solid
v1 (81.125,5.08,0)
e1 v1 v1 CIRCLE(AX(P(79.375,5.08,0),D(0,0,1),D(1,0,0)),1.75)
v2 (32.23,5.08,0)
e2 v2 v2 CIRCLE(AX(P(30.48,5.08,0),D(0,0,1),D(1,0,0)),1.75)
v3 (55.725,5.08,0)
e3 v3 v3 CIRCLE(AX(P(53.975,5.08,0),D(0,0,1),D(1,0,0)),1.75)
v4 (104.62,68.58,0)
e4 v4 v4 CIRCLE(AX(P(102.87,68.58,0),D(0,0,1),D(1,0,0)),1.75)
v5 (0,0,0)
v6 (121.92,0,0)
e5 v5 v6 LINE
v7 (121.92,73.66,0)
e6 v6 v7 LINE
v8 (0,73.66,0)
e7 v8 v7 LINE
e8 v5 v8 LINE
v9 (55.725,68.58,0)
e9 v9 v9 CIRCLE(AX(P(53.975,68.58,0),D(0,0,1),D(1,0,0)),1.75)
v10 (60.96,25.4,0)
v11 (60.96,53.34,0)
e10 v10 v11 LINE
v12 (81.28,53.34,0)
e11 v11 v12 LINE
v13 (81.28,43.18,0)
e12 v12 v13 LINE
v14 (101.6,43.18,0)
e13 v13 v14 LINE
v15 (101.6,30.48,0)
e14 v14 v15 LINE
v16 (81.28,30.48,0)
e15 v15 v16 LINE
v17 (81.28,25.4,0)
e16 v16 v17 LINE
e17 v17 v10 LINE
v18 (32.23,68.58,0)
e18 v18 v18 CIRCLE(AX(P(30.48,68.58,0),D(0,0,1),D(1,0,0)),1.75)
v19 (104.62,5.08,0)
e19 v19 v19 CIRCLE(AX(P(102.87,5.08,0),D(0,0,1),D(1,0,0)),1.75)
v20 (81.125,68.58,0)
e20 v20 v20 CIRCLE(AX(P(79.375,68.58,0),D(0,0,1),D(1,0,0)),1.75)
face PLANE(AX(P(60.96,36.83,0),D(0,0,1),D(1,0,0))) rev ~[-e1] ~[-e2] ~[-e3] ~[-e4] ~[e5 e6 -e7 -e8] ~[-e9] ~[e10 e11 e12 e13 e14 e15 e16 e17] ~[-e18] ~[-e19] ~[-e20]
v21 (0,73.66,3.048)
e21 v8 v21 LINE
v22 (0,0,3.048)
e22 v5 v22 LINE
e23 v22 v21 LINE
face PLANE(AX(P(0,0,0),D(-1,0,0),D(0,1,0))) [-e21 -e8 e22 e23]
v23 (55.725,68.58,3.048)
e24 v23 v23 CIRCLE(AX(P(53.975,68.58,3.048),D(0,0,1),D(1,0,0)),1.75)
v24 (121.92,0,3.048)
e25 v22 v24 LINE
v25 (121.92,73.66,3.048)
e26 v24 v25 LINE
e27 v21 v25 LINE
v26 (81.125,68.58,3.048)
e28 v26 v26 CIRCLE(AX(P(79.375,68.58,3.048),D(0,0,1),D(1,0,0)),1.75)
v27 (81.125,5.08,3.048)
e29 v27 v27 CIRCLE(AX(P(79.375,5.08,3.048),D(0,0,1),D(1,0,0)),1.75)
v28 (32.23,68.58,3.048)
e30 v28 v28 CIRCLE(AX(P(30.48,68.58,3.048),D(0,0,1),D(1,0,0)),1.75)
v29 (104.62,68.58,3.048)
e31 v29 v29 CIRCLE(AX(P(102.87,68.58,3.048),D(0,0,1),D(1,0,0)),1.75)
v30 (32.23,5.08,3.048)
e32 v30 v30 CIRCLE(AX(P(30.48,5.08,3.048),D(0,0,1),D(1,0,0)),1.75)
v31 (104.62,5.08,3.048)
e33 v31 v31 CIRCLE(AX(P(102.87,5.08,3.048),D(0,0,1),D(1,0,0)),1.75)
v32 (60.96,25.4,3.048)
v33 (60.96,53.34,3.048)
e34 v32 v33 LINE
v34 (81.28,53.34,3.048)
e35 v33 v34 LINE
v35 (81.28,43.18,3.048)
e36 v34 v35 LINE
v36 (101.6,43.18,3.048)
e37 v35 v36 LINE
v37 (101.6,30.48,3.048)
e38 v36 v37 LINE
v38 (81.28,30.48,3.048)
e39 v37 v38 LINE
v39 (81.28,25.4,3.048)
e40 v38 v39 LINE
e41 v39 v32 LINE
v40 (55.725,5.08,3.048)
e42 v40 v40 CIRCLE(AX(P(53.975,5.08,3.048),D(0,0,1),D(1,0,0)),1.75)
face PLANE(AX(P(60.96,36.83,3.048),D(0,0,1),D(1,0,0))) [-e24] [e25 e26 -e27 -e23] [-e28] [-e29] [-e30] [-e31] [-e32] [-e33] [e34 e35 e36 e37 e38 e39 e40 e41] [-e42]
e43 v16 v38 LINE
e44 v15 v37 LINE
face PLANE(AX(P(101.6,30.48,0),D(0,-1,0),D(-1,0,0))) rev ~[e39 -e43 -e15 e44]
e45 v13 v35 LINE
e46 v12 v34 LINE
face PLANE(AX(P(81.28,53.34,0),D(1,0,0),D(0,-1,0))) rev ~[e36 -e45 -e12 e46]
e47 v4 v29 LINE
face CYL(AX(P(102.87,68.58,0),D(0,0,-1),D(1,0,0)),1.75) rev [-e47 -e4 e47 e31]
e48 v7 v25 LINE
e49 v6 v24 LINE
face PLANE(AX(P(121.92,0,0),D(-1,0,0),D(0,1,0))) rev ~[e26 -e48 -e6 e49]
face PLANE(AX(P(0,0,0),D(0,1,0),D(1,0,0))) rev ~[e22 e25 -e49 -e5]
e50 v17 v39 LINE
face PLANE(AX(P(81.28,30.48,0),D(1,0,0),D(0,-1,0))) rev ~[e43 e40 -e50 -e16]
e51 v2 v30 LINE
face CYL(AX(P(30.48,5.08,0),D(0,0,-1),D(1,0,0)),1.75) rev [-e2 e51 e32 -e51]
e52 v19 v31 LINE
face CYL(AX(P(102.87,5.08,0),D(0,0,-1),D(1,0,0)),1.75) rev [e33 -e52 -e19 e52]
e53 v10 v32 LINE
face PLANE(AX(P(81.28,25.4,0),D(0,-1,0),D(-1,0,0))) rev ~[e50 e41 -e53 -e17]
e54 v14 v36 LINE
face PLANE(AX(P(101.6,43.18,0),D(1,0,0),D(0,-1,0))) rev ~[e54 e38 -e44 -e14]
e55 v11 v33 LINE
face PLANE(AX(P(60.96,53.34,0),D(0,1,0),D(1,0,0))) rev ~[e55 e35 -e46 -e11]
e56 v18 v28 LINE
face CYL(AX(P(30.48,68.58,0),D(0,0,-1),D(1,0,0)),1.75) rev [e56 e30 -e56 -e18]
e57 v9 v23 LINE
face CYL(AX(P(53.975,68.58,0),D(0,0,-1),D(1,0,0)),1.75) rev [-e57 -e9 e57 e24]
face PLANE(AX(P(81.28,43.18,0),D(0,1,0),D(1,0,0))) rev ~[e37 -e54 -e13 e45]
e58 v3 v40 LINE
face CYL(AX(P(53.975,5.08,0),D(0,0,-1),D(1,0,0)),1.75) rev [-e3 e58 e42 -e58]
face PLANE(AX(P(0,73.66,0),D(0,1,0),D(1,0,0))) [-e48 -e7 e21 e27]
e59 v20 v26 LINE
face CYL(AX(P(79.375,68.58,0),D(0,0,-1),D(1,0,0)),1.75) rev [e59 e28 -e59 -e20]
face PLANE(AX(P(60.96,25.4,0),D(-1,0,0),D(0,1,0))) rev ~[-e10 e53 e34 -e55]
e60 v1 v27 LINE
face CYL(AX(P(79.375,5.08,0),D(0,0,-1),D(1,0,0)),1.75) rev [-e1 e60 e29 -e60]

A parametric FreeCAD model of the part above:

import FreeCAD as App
import Part
import Sketcher
Q = App.Units.Quantity

doc = App.newDocument("Part")
params = doc.addObject("Spreadsheet::Sheet", "Params")
for row, (alias, value) in enumerate([
    ("sketch1_width", "4.8 in"),
    ("sketch1_width2", "0.8 in"),
    ("sketch1_height", "2.9 in"),
    ("sketch1_height2", "0.2 in"),
    ("sketch1_height3", "1.1 in"),
    ("pad1_length", "0.12 in"),
], start=1):
    params.set(f"A{row}", alias)
    params.set(f"B{row}", "=" + value)
    params.setAlias(f"B{row}", alias)

body = doc.addObject("PartDesign::Body", "Body")

sketch1 = body.newObject("Sketcher::SketchObject", "Sketch")
sketch1.AttachmentSupport = (doc.getObject("XY_Plane"), [""])
sketch1.MapMode = "FlatFace"
sketch1.addGeometry([
    Part.LineSegment(App.Vector(0, 73.66, 0), App.Vector(0, 0, 0)),
    Part.LineSegment(App.Vector(0, 0, 0), App.Vector(121.92, 0, 0)),
    Part.LineSegment(App.Vector(121.92, 0, 0), App.Vector(121.92, 73.66, 0)),
    Part.LineSegment(App.Vector(121.92, 73.66, 0), App.Vector(0, 73.66, 0)),
    Part.Circle(App.Vector(30.48, 5.08, 0), App.Vector(0, 0, 1), 1.75),
    Part.Circle(App.Vector(53.975, 5.08, 0), App.Vector(0, 0, 1), 1.75),
    Part.Circle(App.Vector(79.375, 5.08, 0), App.Vector(0, 0, 1), 1.75),
    Part.Circle(App.Vector(102.87, 5.08, 0), App.Vector(0, 0, 1), 1.75),
    Part.Circle(App.Vector(30.48, 68.58, 0), App.Vector(0, 0, 1), 1.75),
    Part.Circle(App.Vector(53.975, 68.58, 0), App.Vector(0, 0, 1), 1.75),
    Part.LineSegment(App.Vector(81.28, 30.48, 0), App.Vector(81.28, 25.4, 0)),
    Part.LineSegment(App.Vector(81.28, 25.4, 0), App.Vector(60.96, 25.4, 0)),
    Part.LineSegment(App.Vector(60.96, 25.4, 0), App.Vector(60.96, 53.34, 0)),
    Part.LineSegment(App.Vector(60.96, 53.34, 0), App.Vector(81.28, 53.34, 0)),
    Part.LineSegment(App.Vector(81.28, 53.34, 0), App.Vector(81.28, 43.18, 0)),
    Part.LineSegment(App.Vector(81.28, 43.18, 0), App.Vector(101.6, 43.18, 0)),
    Part.LineSegment(App.Vector(101.6, 43.18, 0), App.Vector(101.6, 30.48, 0)),
    Part.LineSegment(App.Vector(101.6, 30.48, 0), App.Vector(81.28, 30.48, 0)),
    Part.Circle(App.Vector(79.375, 68.58, 0), App.Vector(0, 0, 1), 1.75),
    Part.Circle(App.Vector(102.87, 68.58, 0), App.Vector(0, 0, 1), 1.75),
], False)
sketch1.addConstraint([
    Sketcher.Constraint("Coincident", 0, 2, 1, 1),
    Sketcher.Constraint("Coincident", 1, 2, 2, 1),
    Sketcher.Constraint("Coincident", 2, 2, 3, 1),
    Sketcher.Constraint("Coincident", 3, 2, 0, 1),
    Sketcher.Constraint("Coincident", 10, 2, 11, 1),
    Sketcher.Constraint("Coincident", 11, 2, 12, 1),
    Sketcher.Constraint("Coincident", 12, 2, 13, 1),
    Sketcher.Constraint("Coincident", 13, 2, 14, 1),
    Sketcher.Constraint("Coincident", 14, 2, 15, 1),
    Sketcher.Constraint("Coincident", 15, 2, 16, 1),
    Sketcher.Constraint("Coincident", 16, 2, 17, 1),
    Sketcher.Constraint("Coincident", 17, 2, 10, 1),
    Sketcher.Constraint("Vertical", 0),
    Sketcher.Constraint("Horizontal", 1),
    Sketcher.Constraint("Vertical", 2),
    Sketcher.Constraint("Horizontal", 3),
    Sketcher.Constraint("Vertical", 10),
    Sketcher.Constraint("Horizontal", 11),
    Sketcher.Constraint("Vertical", 12),
    Sketcher.Constraint("Horizontal", 13),
    Sketcher.Constraint("Vertical", 14),
    Sketcher.Constraint("Horizontal", 15),
    Sketcher.Constraint("Vertical", 16),
    Sketcher.Constraint("Horizontal", 17),
    Sketcher.Constraint("Coincident", 0, 2, -1, 1),
    Sketcher.Constraint("Equal", 4, 5),
    Sketcher.Constraint("Equal", 5, 6),
    Sketcher.Constraint("Equal", 6, 7),
    Sketcher.Constraint("Equal", 7, 8),
    Sketcher.Constraint("Equal", 8, 9),
    Sketcher.Constraint("Equal", 9, 18),
    Sketcher.Constraint("Equal", 18, 19),
    Sketcher.Constraint("Horizontal", 4, 3, 5, 3),
    Sketcher.Constraint("Horizontal", 5, 3, 6, 3),
    Sketcher.Constraint("Horizontal", 6, 3, 7, 3),
    Sketcher.Constraint("Horizontal", 8, 3, 9, 3),
    Sketcher.Constraint("Horizontal", 9, 3, 18, 3),
    Sketcher.Constraint("Horizontal", 18, 3, 19, 3),
    Sketcher.Constraint("Vertical", 4, 3, 8, 3),
    Sketcher.Constraint("Vertical", 5, 3, 9, 3),
    Sketcher.Constraint("Vertical", 6, 3, 18, 3),
    Sketcher.Constraint("Vertical", 7, 3, 19, 3),
    Sketcher.Constraint("Vertical", 10, 2, 13, 2),
    Sketcher.Constraint("Equal", 13, 15),
    Sketcher.Constraint("DistanceX", 1, 1, 1, 2, Q("4.8 in")),
    Sketcher.Constraint("DistanceX", 11, 2, 11, 1, Q("0.8 in")),
    Sketcher.Constraint("DistanceY", 0, 2, 0, 1, Q("2.9 in")),
    Sketcher.Constraint("DistanceY", 10, 2, 10, 1, Q("0.2 in")),
    Sketcher.Constraint("DistanceY", 12, 1, 12, 2, Q("1.1 in")),
    Sketcher.Constraint("DistanceY", 14, 2, 14, 1, Q("0.4 in")),
    Sketcher.Constraint("DistanceY", -1, 1, 10, 2, Q("1 in")),
    Sketcher.Constraint("DistanceX", -1, 1, 15, 2, Q("4 in")),
    Sketcher.Constraint("DistanceX", 5, 3, 6, 3, Q("1 in")),
    Sketcher.Constraint("DistanceY", 14, 2, 18, 3, Q("1 in")),
    Sketcher.Constraint("DistanceY", 7, 3, 16, 2, Q("1 in")),
    Sketcher.Constraint("DistanceX", -1, 1, 4, 3, Q("1.2 in")),
    Sketcher.Constraint("Diameter", 4, 3.5),
    Sketcher.Constraint("DistanceX", -1, 1, 7, 3, Q("4.05 in")),
    Sketcher.Constraint("DistanceX", -1, 1, 5, 3, Q("2.125 in")),
])
sketch1.setExpression("Constraints[44]", "Params.sketch1_width")
sketch1.setExpression("Constraints[45]", "Params.sketch1_width2")
sketch1.setExpression("Constraints[46]", "Params.sketch1_height")
sketch1.setExpression("Constraints[47]", "Params.sketch1_height2")
sketch1.setExpression("Constraints[48]", "Params.sketch1_height3")
pad1 = body.newObject("PartDesign::Pad", "Pad")
pad1.Profile = sketch1
pad1.setExpression("Length", "Params.pad1_length")

doc.recompute()
